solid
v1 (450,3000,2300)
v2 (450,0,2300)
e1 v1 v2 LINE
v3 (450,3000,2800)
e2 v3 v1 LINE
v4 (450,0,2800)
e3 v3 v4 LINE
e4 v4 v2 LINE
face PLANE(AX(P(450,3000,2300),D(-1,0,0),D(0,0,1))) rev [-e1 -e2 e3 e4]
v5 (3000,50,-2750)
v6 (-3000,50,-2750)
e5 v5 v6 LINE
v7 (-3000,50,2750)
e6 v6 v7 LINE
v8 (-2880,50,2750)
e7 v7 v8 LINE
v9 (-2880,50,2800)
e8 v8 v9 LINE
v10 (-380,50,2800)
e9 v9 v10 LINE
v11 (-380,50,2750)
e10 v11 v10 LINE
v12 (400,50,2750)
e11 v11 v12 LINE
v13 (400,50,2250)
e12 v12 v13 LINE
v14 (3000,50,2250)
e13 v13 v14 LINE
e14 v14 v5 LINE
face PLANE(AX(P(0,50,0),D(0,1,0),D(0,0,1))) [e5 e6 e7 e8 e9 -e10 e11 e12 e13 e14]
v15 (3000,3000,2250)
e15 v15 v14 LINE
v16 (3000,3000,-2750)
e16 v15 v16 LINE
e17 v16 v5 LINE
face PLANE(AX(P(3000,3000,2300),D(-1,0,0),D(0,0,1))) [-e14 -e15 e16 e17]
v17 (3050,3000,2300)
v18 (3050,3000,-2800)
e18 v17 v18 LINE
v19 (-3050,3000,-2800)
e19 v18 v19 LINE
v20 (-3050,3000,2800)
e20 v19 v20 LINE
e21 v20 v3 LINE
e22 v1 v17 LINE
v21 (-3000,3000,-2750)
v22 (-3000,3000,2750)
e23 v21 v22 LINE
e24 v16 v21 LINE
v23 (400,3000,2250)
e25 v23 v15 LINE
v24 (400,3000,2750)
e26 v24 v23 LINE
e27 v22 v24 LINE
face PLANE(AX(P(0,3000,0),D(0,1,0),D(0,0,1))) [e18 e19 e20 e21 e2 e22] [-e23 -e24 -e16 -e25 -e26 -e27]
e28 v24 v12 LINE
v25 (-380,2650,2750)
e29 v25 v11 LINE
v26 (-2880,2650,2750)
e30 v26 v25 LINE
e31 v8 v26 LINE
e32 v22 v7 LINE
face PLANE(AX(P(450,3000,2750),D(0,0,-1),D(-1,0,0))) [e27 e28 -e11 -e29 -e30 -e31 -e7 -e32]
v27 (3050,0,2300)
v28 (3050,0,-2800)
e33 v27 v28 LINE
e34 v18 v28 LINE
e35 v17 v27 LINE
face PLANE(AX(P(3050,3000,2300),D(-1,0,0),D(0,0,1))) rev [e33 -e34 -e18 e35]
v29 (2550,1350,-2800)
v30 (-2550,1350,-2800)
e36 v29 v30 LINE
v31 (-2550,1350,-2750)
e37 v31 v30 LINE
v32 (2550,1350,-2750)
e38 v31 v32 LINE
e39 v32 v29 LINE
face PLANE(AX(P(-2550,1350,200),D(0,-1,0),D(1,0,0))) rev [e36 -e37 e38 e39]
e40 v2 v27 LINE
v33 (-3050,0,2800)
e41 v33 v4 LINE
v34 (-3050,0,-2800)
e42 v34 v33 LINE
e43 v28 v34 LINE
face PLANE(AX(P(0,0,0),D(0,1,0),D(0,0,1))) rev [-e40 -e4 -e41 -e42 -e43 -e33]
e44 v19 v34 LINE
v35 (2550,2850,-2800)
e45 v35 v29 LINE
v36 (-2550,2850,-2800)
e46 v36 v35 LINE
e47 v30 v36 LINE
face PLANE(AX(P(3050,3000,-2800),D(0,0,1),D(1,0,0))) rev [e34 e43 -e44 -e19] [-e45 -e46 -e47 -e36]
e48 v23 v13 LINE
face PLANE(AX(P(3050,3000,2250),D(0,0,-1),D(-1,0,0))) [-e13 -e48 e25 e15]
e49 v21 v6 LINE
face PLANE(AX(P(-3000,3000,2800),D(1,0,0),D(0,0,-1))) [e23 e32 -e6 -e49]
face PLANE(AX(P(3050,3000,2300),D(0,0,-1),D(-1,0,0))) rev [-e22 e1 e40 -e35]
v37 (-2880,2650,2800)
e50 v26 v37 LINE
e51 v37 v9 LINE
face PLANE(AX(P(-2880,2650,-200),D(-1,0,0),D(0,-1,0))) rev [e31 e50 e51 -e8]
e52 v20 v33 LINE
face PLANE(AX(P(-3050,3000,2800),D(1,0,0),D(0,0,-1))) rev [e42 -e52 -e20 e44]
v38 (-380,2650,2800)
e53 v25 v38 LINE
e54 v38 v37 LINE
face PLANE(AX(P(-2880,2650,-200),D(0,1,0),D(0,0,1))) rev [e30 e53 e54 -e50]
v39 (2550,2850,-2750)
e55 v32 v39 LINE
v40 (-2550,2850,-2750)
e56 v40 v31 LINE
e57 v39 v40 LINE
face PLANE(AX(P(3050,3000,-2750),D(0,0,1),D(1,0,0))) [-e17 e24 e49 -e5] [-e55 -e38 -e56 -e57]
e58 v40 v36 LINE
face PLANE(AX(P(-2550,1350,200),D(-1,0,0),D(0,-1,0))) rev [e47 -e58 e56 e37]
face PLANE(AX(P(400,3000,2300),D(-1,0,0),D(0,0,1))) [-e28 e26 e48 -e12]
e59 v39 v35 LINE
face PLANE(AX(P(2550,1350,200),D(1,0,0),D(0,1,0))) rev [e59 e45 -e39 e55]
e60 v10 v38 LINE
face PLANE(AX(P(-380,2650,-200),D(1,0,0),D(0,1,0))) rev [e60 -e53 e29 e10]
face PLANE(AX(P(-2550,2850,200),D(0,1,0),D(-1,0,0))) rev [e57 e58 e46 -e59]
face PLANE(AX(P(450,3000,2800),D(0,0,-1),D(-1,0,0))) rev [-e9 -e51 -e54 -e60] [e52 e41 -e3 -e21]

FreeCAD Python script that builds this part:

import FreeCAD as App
import Part
import Sketcher


def faces_at(feature, points):
    """Names of the faces that lie closest to the given points."""
    faces = feature.Shape.Faces
    near = lambda p: min(range(len(faces)), key=lambda i: faces[i].distToShape(Part.Vertex(*p))[0])
    return sorted({f"Face{near(p) + 1}" for p in points})

doc = App.newDocument("Part")
body = doc.addObject("PartDesign::Body", "Body")

# Sketch on XZ plane
sketch1 = doc.addObject("Sketcher::SketchObject", "Sketch")
body.addObject(sketch1)
sketch1.AttachmentSupport = (doc.XZ_Plane, [""])
sketch1.MapMode = "FlatFace"
sketch1.addGeometry(Part.LineSegment(App.Vector(-3050, 2800, 0), App.Vector(450, 2800, 0)), False)
sketch1.addGeometry(Part.LineSegment(App.Vector(450, 2800, 0), App.Vector(450, 2300, 0)), False)
sketch1.addGeometry(Part.LineSegment(App.Vector(450, 2300, 0), App.Vector(3050, 2300, 0)), False)
sketch1.addGeometry(Part.LineSegment(App.Vector(3050, 2300, 0), App.Vector(3050, -2800, 0)), False)
sketch1.addGeometry(Part.LineSegment(App.Vector(3050, -2800, 0), App.Vector(-3050, -2800, 0)), False)
sketch1.addGeometry(Part.LineSegment(App.Vector(-3050, -2800, 0), App.Vector(-3050, 2800, 0)), False)
sketch1.addConstraint(Sketcher.Constraint("Coincident", 0, 2, 1, 1))
sketch1.addConstraint(Sketcher.Constraint("Coincident", 1, 2, 2, 1))
sketch1.addConstraint(Sketcher.Constraint("Coincident", 2, 2, 3, 1))
sketch1.addConstraint(Sketcher.Constraint("Coincident", 3, 2, 4, 1))
sketch1.addConstraint(Sketcher.Constraint("Coincident", 4, 2, 5, 1))
sketch1.addConstraint(Sketcher.Constraint("Coincident", 5, 2, 0, 1))
sketch1.addConstraint(Sketcher.Constraint("Horizontal", 0))
sketch1.addConstraint(Sketcher.Constraint("Vertical", 1))
sketch1.addConstraint(Sketcher.Constraint("Horizontal", 2))
sketch1.addConstraint(Sketcher.Constraint("Vertical", 3))
sketch1.addConstraint(Sketcher.Constraint("Horizontal", 4))
sketch1.addConstraint(Sketcher.Constraint("Vertical", 5))
sketch1.addConstraint(Sketcher.Constraint("Symmetric", 3, 2, 5, 2, -1, 1))
sketch1.addConstraint(Sketcher.Constraint("DistanceX", 0, 1, 0, 2, 3500.0))
sketch1.addConstraint(Sketcher.Constraint("DistanceX", 2, 1, 2, 2, 2600.0))
sketch1.addConstraint(Sketcher.Constraint("DistanceY", 1, 2, 1, 1, 500.0))
sketch1.addConstraint(Sketcher.Constraint("DistanceY", 3, 2, 3, 1, 5100.0))
pad1 = doc.addObject("PartDesign::Pad", "Pad")
body.addObject(pad1)
pad1.Profile = sketch1
pad1.Length = 3000
pad1.Reversed = True
doc.recompute()

thickness = doc.addObject("PartDesign::Thickness", "Thickness")
body.addObject(thickness)
thickness.Base = (pad1, faces_at(pad1, [(0, 3000, 0)]))
thickness.Value = 50
thickness.Reversed = True
thickness.Join = "Intersection"

# Sketch on XY plane
sketch2 = doc.addObject("Sketcher::SketchObject", "Sketch001")
body.addObject(sketch2)
sketch2.AttachmentSupport = (doc.XY_Plane, [""])
sketch2.MapMode = "FlatFace"
sketch2.AttachmentOffset = App.Placement(App.Vector(0, 0, 2800), App.Rotation())
sketch2.addGeometry(Part.LineSegment(App.Vector(-2880, 2650, 0), App.Vector(-2880, 50, 0)), False)
sketch2.addGeometry(Part.LineSegment(App.Vector(-2880, 50, 0), App.Vector(-380, 50, 0)), False)
sketch2.addGeometry(Part.LineSegment(App.Vector(-380, 50, 0), App.Vector(-380, 2650, 0)), False)
sketch2.addGeometry(Part.LineSegment(App.Vector(-380, 2650, 0), App.Vector(-2880, 2650, 0)), False)
sketch2.addConstraint(Sketcher.Constraint("Coincident", 0, 2, 1, 1))
sketch2.addConstraint(Sketcher.Constraint("Coincident", 1, 2, 2, 1))
sketch2.addConstraint(Sketcher.Constraint("Coincident", 2, 2, 3, 1))
sketch2.addConstraint(Sketcher.Constraint("Coincident", 3, 2, 0, 1))
sketch2.addConstraint(Sketcher.Constraint("Vertical", 0))
sketch2.addConstraint(Sketcher.Constraint("Horizontal", 1))
sketch2.addConstraint(Sketcher.Constraint("Vertical", 2))
sketch2.addConstraint(Sketcher.Constraint("Horizontal", 3))
sketch2.addConstraint(Sketcher.Constraint("DistanceX", 1, 1, 1, 2, 2500.0))
sketch2.addConstraint(Sketcher.Constraint("DistanceY", 0, 2, 0, 1, 2600.0))
sketch2.addConstraint(Sketcher.Constraint("DistanceX", 0, 2, -1, 1, 2880.0))
sketch2.addConstraint(Sketcher.Constraint("DistanceY", -1, 1, 0, 2, 50.0))
pocket1 = doc.addObject("PartDesign::Pocket", "Pocket")
body.addObject(pocket1)
pocket1.Profile = sketch2
pocket1.Length = 3000

# Sketch on XY plane
sketch3 = doc.addObject("Sketcher::SketchObject", "Sketch002")
body.addObject(sketch3)
sketch3.AttachmentSupport = (doc.XY_Plane, [""])
sketch3.MapMode = "FlatFace"
sketch3.AttachmentOffset = App.Placement(App.Vector(0, 0, -2800), App.Rotation())
sketch3.addGeometry(Part.LineSegment(App.Vector(2550, 2850, 0), App.Vector(2550, 1350, 0)), False)
sketch3.addGeometry(Part.LineSegment(App.Vector(2550, 1350, 0), App.Vector(-2550, 1350, 0)), False)
sketch3.addGeometry(Part.LineSegment(App.Vector(-2550, 1350, 0), App.Vector(-2550, 2850, 0)), False)
sketch3.addGeometry(Part.LineSegment(App.Vector(-2550, 2850, 0), App.Vector(2550, 2850, 0)), False)
sketch3.addConstraint(Sketcher.Constraint("Coincident", 0, 2, 1, 1))
sketch3.addConstraint(Sketcher.Constraint("Coincident", 1, 2, 2, 1))
sketch3.addConstraint(Sketcher.Constraint("Coincident", 2, 2, 3, 1))
sketch3.addConstraint(Sketcher.Constraint("Coincident", 3, 2, 0, 1))
sketch3.addConstraint(Sketcher.Constraint("Vertical", 0))
sketch3.addConstraint(Sketcher.Constraint("Horizontal", 1))
sketch3.addConstraint(Sketcher.Constraint("Vertical", 2))
sketch3.addConstraint(Sketcher.Constraint("Horizontal", 3))
sketch3.addConstraint(Sketcher.Constraint("DistanceX", 1, 2, 1, 1, 5100.0))
sketch3.addConstraint(Sketcher.Constraint("DistanceY", 0, 2, 0, 1, 1500.0))
sketch3.addConstraint(Sketcher.Constraint("DistanceX", -1, 1, 0, 2, 2550.0))
sketch3.addConstraint(Sketcher.Constraint("DistanceY", -1, 1, 0, 2, 1350.0))
pocket2 = doc.addObject("PartDesign::Pocket", "Pocket001")
body.addObject(pocket2)
pocket2.Profile = sketch3
pocket2.Length = 3000
pocket2.Reversed = True

doc.recompute()
